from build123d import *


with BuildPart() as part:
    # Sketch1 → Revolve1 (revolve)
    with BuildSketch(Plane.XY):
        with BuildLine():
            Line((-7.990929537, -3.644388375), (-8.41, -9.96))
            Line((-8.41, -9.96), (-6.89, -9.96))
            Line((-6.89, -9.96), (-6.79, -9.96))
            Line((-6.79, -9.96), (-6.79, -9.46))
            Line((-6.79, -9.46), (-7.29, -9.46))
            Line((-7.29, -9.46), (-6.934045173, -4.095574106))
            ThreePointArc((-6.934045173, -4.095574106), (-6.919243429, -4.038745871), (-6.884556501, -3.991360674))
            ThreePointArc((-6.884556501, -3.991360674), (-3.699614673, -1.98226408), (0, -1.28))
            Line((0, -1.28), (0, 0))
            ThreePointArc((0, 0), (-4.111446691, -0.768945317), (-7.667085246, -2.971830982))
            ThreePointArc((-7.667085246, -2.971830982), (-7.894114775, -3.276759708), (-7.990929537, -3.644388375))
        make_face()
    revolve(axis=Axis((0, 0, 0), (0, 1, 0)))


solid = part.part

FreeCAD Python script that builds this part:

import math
import FreeCAD as App
import Part
import Sketcher

doc = App.newDocument("Part")
body = doc.addObject("PartDesign::Body", "Body")

# Sketch on XY plane
sketch1 = body.newObject("Sketcher::SketchObject", "Sketch")
sketch1.AttachmentSupport = (doc.getObject("XY_Plane"), [""])
sketch1.MapMode = "FlatFace"
sketch1.addGeometry([
    Part.LineSegment(App.Vector(-7.99, -3.64, 0), App.Vector(-8.41, -9.96, 0)),  # 0
    Part.LineSegment(App.Vector(-8.41, -9.96, 0), App.Vector(-6.79, -9.96, 0)),  # 1
    Part.LineSegment(App.Vector(-6.79, -9.96, 0), App.Vector(-6.79, -9.46, 0)),  # 2
    Part.LineSegment(App.Vector(-6.79, -9.46, 0), App.Vector(-7.29, -9.46, 0)),  # 3
    Part.LineSegment(App.Vector(-7.29, -9.46, 0), App.Vector(-6.93, -4.1, 0)),  # 4
    Part.ArcOfCircle(Part.Circle(App.Vector(-6.78, -4.11, 0), App.Vector(0, 0, 1), 0.16), math.radians(133), math.radians(176)),  # 5
    Part.ArcOfCircle(Part.Circle(App.Vector(0, -11.38, 0), App.Vector(0, 0, 1), 10.1), math.radians(90), math.radians(133)),  # 6
    Part.LineSegment(App.Vector(0, -1.28, 0), App.Vector(0, 0, 0)),  # 7
    Part.ArcOfCircle(Part.Circle(App.Vector(0, -11.38, 0), App.Vector(0, 0, 1), 11.38), math.radians(90), math.radians(132)),  # 8
    Part.ArcOfCircle(Part.Circle(App.Vector(-6.99, -3.71, 0), App.Vector(0, 0, 1), 1), math.radians(132), math.radians(176)),  # 9
], False)
sketch1.addConstraint([
    Sketcher.Constraint("Coincident", 0, 2, 1, 1),
    Sketcher.Constraint("Coincident", 1, 2, 2, 1),
    Sketcher.Constraint("Coincident", 2, 2, 3, 1),
    Sketcher.Constraint("Coincident", 3, 2, 4, 1),
    Sketcher.Constraint("Tangent", 4, 2, 5, 2),
    Sketcher.Constraint("Tangent", 5, 1, 6, 2),
    Sketcher.Constraint("Coincident", 6, 1, 7, 1),
    Sketcher.Constraint("Coincident", 7, 2, 8, 1),
    Sketcher.Constraint("Tangent", 8, 2, 9, 1),
    Sketcher.Constraint("Tangent", 9, 2, 0, 1),
    Sketcher.Constraint("Horizontal", 1),
    Sketcher.Constraint("Vertical", 2),
    Sketcher.Constraint("Horizontal", 3),
    Sketcher.Constraint("Vertical", 7),
    Sketcher.Constraint("Coincident", 7, 2, -1, 1),
    Sketcher.Constraint("Coincident", 8, 3, 6, 3),
    Sketcher.Constraint("PointOnObject", 6, 3, -2),
    Sketcher.Constraint("Parallel", 0, 4),
    Sketcher.Constraint("Equal", 3, 2),
    Sketcher.Constraint("Radius", 9, 1.0),
    Sketcher.Constraint("DistanceX", 3, 2, 3, 1, 0.5),
    Sketcher.Constraint("DistanceX", 1, 1, 1, 2, 1.62),
    Sketcher.Constraint("DistanceY", 7, 1, 7, 2, 1.28),
    Sketcher.Constraint("DistanceX", 0, 2, -1, 1, 8.41),
    Sketcher.Constraint("DistanceY", 0, 2, -1, 1, 9.96),
    Sketcher.Constraint("Radius", 5, 0.156656),
    Sketcher.Constraint("Radius", 6, 10.096148),
    Sketcher.Constraint("Distance", 0, 6.3295),
])
revolution = body.newObject("PartDesign::Revolution", "Revolution")
revolution.Profile = sketch1
revolution.ReferenceAxis = (sketch1, ["V_Axis"])
revolution.Angle = 360

doc.recompute()
